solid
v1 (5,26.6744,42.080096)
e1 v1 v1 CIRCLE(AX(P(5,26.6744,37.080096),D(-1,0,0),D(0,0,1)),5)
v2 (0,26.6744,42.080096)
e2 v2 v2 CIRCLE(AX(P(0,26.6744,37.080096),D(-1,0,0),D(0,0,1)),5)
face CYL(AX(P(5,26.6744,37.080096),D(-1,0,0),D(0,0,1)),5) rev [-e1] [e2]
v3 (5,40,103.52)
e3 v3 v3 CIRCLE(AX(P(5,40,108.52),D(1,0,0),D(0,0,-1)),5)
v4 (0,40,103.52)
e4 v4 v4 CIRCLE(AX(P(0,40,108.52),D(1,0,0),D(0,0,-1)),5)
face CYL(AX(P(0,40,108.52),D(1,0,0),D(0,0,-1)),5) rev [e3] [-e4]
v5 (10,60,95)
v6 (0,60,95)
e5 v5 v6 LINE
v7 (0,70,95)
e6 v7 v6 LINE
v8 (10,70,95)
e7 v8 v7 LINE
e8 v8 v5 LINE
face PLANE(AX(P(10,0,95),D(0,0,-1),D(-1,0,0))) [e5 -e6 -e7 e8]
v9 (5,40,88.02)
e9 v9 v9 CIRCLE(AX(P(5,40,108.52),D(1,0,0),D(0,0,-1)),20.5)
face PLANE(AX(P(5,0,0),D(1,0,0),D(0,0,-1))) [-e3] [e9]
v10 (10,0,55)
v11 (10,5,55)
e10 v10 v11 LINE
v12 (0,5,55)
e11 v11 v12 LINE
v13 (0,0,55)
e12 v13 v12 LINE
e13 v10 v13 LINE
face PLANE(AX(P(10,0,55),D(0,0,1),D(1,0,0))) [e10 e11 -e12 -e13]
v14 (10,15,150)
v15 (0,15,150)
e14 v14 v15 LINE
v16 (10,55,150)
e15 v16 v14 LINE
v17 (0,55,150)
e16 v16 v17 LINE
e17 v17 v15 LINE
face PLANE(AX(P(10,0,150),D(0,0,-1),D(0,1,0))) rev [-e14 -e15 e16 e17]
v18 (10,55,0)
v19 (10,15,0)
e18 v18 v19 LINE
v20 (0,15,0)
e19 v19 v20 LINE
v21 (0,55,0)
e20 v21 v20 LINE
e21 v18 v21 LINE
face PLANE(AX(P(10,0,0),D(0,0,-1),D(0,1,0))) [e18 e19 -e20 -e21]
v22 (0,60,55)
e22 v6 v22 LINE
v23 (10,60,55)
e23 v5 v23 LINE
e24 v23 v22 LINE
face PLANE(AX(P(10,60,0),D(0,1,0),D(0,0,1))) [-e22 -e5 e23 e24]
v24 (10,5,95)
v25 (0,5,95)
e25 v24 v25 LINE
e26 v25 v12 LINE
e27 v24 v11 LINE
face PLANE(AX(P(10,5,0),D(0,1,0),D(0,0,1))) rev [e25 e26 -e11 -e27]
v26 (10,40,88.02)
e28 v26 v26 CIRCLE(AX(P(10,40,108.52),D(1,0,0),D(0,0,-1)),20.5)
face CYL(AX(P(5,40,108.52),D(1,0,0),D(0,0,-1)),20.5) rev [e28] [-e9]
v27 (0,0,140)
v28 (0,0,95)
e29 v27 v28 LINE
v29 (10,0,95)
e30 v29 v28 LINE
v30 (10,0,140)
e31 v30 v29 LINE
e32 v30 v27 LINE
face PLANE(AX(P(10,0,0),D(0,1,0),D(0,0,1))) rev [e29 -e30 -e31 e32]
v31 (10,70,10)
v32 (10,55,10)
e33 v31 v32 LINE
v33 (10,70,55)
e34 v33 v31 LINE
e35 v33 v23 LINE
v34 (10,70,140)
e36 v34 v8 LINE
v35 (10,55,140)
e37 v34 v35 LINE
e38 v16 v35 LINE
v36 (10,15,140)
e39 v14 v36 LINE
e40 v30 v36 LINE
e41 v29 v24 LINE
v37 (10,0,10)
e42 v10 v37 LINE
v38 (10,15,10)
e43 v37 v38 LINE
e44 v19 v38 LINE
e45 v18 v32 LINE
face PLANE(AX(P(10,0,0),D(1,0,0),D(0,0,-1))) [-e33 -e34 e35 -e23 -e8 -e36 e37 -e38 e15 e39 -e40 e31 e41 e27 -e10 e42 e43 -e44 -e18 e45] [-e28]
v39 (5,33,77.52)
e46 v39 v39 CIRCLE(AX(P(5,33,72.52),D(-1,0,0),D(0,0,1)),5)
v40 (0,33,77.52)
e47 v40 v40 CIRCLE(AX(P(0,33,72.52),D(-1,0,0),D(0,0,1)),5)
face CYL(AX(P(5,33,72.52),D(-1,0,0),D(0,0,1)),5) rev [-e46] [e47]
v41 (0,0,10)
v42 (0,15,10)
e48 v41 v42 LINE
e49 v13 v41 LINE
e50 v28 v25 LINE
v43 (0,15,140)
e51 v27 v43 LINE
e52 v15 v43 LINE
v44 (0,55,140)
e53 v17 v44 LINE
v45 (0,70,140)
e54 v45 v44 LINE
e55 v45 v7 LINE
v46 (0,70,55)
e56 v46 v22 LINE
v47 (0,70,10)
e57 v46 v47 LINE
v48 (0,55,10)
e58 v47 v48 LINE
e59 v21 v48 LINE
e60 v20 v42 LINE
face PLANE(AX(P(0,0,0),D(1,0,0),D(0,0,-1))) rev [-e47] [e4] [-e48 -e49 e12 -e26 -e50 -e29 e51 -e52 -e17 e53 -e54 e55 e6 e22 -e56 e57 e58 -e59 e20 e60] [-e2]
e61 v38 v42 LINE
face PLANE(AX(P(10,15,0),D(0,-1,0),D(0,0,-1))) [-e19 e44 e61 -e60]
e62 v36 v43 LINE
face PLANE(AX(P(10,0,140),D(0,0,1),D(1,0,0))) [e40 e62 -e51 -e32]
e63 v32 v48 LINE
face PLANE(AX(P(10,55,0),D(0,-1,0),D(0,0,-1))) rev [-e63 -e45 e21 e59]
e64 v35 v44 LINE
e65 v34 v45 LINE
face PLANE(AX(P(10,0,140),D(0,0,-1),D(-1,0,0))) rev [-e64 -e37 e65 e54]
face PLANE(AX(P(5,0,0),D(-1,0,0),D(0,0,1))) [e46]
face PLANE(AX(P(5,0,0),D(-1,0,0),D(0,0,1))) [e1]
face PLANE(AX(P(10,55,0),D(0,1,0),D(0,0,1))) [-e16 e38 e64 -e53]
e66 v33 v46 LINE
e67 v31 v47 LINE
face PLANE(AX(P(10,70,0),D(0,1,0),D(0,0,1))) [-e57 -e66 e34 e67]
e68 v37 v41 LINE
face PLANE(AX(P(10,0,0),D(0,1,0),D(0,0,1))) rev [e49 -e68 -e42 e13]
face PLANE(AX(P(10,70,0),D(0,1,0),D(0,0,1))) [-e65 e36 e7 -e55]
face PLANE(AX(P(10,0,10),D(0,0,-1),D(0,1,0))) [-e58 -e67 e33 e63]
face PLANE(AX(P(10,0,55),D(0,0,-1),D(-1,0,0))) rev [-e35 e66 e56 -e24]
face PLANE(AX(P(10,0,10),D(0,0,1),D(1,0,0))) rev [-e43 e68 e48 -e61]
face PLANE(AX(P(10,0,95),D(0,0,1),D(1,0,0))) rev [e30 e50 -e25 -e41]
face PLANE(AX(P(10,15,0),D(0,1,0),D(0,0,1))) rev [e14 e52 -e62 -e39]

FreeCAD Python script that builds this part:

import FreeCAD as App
import Part
import Sketcher
from FreeCAD import Vector
Q = App.Units.Quantity

doc = App.newDocument("Part")
body = doc.addObject("PartDesign::Body", "Body")

# Sketch on YZ plane
sketch1 = body.newObject("Sketcher::SketchObject", "Sketch")
sketch1.AttachmentSupport = (doc.getObject("YZ_Plane"), [""])
sketch1.MapMode = "FlatFace"
sketch1.addGeometry([
    Part.LineSegment(Vector(70, 95, 0), Vector(70, 140, 0)),  # 0
    Part.LineSegment(Vector(70, 140, 0), Vector(55, 140, 0)),  # 1
    Part.LineSegment(Vector(55, 140, 0), Vector(55, 150, 0)),  # 2
    Part.LineSegment(Vector(55, 150, 0), Vector(15, 150, 0)),  # 3
    Part.LineSegment(Vector(15, 150, 0), Vector(15, 140, 0)),  # 4
    Part.LineSegment(Vector(15, 140, 0), Vector(0, 140, 0)),  # 5
    Part.LineSegment(Vector(0, 140, 0), Vector(0, 95, 0)),  # 6
    Part.LineSegment(Vector(0, 95, 0), Vector(5, 95, 0)),  # 7
    Part.LineSegment(Vector(5, 95, 0), Vector(5, 55, 0)),  # 8
    Part.LineSegment(Vector(5, 55, 0), Vector(0, 55, 0)),  # 9
    Part.LineSegment(Vector(0, 55, 0), Vector(0, 10, 0)),  # 10
    Part.LineSegment(Vector(0, 10, 0), Vector(15, 10, 0)),  # 11
    Part.LineSegment(Vector(15, 10, 0), Vector(15, 0, 0)),  # 12
    Part.LineSegment(Vector(15, 0, 0), Vector(55, 0, 0)),  # 13
    Part.LineSegment(Vector(55, 0, 0), Vector(55, 10, 0)),  # 14
    Part.LineSegment(Vector(55, 10, 0), Vector(70, 10, 0)),  # 15
    Part.LineSegment(Vector(70, 10, 0), Vector(70, 55, 0)),  # 16
    Part.LineSegment(Vector(70, 55, 0), Vector(60, 55, 0)),  # 17
    Part.LineSegment(Vector(60, 55, 0), Vector(60, 95, 0)),  # 18
    Part.LineSegment(Vector(60, 95, 0), Vector(70, 95, 0)),  # 19
], False)
sketch1.addConstraint([
    Sketcher.Constraint("Coincident", 0, 2, 1, 1),
    Sketcher.Constraint("Coincident", 1, 2, 2, 1),
    Sketcher.Constraint("Coincident", 2, 2, 3, 1),
    Sketcher.Constraint("Coincident", 3, 2, 4, 1),
    Sketcher.Constraint("Coincident", 4, 2, 5, 1),
    Sketcher.Constraint("Coincident", 5, 2, 6, 1),
    Sketcher.Constraint("Coincident", 6, 2, 7, 1),
    Sketcher.Constraint("Coincident", 7, 2, 8, 1),
    Sketcher.Constraint("Coincident", 8, 2, 9, 1),
    Sketcher.Constraint("Coincident", 9, 2, 10, 1),
    Sketcher.Constraint("Coincident", 10, 2, 11, 1),
    Sketcher.Constraint("Coincident", 11, 2, 12, 1),
    Sketcher.Constraint("Coincident", 12, 2, 13, 1),
    Sketcher.Constraint("Coincident", 13, 2, 14, 1),
    Sketcher.Constraint("Coincident", 14, 2, 15, 1),
    Sketcher.Constraint("Coincident", 15, 2, 16, 1),
    Sketcher.Constraint("Coincident", 16, 2, 17, 1),
    Sketcher.Constraint("Coincident", 17, 2, 18, 1),
    Sketcher.Constraint("Coincident", 18, 2, 19, 1),
    Sketcher.Constraint("Coincident", 19, 2, 0, 1),
    Sketcher.Constraint("Vertical", 0),
    Sketcher.Constraint("Horizontal", 1),
    Sketcher.Constraint("Vertical", 2),
    Sketcher.Constraint("Horizontal", 3),
    Sketcher.Constraint("Vertical", 4),
    Sketcher.Constraint("Horizontal", 5),
    Sketcher.Constraint("Vertical", 6),
    Sketcher.Constraint("Horizontal", 7),
    Sketcher.Constraint("Vertical", 8),
    Sketcher.Constraint("Horizontal", 9),
    Sketcher.Constraint("Vertical", 10),
    Sketcher.Constraint("Horizontal", 11),
    Sketcher.Constraint("Vertical", 12),
    Sketcher.Constraint("Horizontal", 13),
    Sketcher.Constraint("Vertical", 14),
    Sketcher.Constraint("Horizontal", 15),
    Sketcher.Constraint("Vertical", 16),
    Sketcher.Constraint("Horizontal", 17),
    Sketcher.Constraint("Vertical", 18),
    Sketcher.Constraint("Horizontal", 19),
    Sketcher.Constraint("PointOnObject", 5, 2, -2),
    Sketcher.Constraint("PointOnObject", 9, 2, -2),
    Sketcher.Constraint("PointOnObject", 12, 2, -1),
    Sketcher.Constraint("Horizontal", 1, 2, 4, 2),
    Sketcher.Constraint("Horizontal", 11, 2, 14, 2),
    Sketcher.Constraint("Horizontal", 9, 2, 16, 2),
    Sketcher.Constraint("Horizontal", 7, 2, 18, 2),
    Sketcher.Constraint("Vertical", 4, 2, 11, 2),
    Sketcher.Constraint("Vertical", 2, 2, 13, 2),
    Sketcher.Constraint("Vertical", 0, 2, 15, 2),
    Sketcher.Constraint("Equal", 1, 5),
    Sketcher.Constraint("Equal", 19, 2),
    Sketcher.Constraint("Equal", 13, 8),
    Sketcher.Constraint("Equal", 6, 10),
    Sketcher.Constraint("Equal", 4, 12),
    Sketcher.Constraint("DistanceX", 1, 2, 1, 1, Q("15 mm")),
    Sketcher.Constraint("DistanceX", 3, 2, 3, 1, Q("40 mm")),
    Sketcher.Constraint("DistanceX", 7, 1, 7, 2, Q("5 mm")),
    Sketcher.Constraint("DistanceX", 17, 2, 17, 1, Q("10 mm")),
    Sketcher.Constraint("DistanceY", 0, 1, 0, 2, Q("45 mm")),
])
pad1 = body.newObject("PartDesign::Pad", "Pad")
pad1.Profile = sketch1
pad1.Length = 10

# Sketch on YZ plane
sketch2 = body.newObject("Sketcher::SketchObject", "Sketch001")
sketch2.AttachmentSupport = (doc.getObject("YZ_Plane"), [""])
sketch2.MapMode = "FlatFace"
sketch2.AttachmentOffset = App.Placement(Vector(0, 0, 10), App.Rotation())
sketch2.addGeometry(Part.Circle(Vector(40, 108.52, 0), Vector(0, 0, 1), 20.5), False)
sketch2.addConstraint([
    Sketcher.Constraint("Diameter", 0, Q("41 mm")),
    Sketcher.Constraint("DistanceX", -1, 1, 0, 3, Q("40 mm")),
    Sketcher.Constraint("DistanceY", -1, 1, 0, 3, Q("108.52 mm")),
])
pocket1 = body.newObject("PartDesign::Pocket", "Pocket")
pocket1.Profile = sketch2
pocket1.Length = 5

# Sketch on YZ plane
sketch3 = body.newObject("Sketcher::SketchObject", "Sketch002")
sketch3.AttachmentSupport = (doc.getObject("YZ_Plane"), [""])
sketch3.MapMode = "FlatFace"
sketch3.AttachmentOffset = App.Placement(Vector(0, 0, 5), App.Rotation())
sketch3.addGeometry(Part.Circle(Vector(40, 108.52, 0), Vector(0, 0, 1), 5), False)
sketch3.addConstraint([
    Sketcher.Constraint("Diameter", 0, Q("10 mm")),
    Sketcher.Constraint("DistanceX", -1, 1, 0, 3, Q("40 mm")),
    Sketcher.Constraint("DistanceY", -1, 1, 0, 3, Q("108.52 mm")),
])
pocket2 = body.newObject("PartDesign::Pocket", "Pocket001")
pocket2.Profile = sketch3
pocket2.Type = "ThroughAll"

# Sketch on YZ plane
sketch4 = body.newObject("Sketcher::SketchObject", "Sketch003")
sketch4.AttachmentSupport = (doc.getObject("YZ_Plane"), [""])
sketch4.MapMode = "FlatFace"
sketch4.addGeometry([
    Part.Circle(Vector(26.6744, 37.080096, 0), Vector(0, 0, 1), 5),
    Part.Circle(Vector(33, 72.52, 0), Vector(0, 0, 1), 5),
], False)
sketch4.addConstraint([
    Sketcher.Constraint("Equal", 0, 1),
    Sketcher.Constraint("Diameter", 0, Q("10 mm")),
    Sketcher.Constraint("DistanceX", -1, 1, 1, 3, Q("33 mm")),
    Sketcher.Constraint("DistanceY", -1, 1, 1, 3, Q("72.52 mm")),
    Sketcher.Constraint("DistanceX", -1, 1, 0, 3, Q("26.6744 mm")),
    Sketcher.Constraint("DistanceY", -1, 1, 0, 3, Q("37.080096 mm")),
])
pocket3 = body.newObject("PartDesign::Pocket", "Pocket002")
pocket3.Profile = sketch4
pocket3.Length = 5
pocket3.Reversed = True

doc.recompute()
